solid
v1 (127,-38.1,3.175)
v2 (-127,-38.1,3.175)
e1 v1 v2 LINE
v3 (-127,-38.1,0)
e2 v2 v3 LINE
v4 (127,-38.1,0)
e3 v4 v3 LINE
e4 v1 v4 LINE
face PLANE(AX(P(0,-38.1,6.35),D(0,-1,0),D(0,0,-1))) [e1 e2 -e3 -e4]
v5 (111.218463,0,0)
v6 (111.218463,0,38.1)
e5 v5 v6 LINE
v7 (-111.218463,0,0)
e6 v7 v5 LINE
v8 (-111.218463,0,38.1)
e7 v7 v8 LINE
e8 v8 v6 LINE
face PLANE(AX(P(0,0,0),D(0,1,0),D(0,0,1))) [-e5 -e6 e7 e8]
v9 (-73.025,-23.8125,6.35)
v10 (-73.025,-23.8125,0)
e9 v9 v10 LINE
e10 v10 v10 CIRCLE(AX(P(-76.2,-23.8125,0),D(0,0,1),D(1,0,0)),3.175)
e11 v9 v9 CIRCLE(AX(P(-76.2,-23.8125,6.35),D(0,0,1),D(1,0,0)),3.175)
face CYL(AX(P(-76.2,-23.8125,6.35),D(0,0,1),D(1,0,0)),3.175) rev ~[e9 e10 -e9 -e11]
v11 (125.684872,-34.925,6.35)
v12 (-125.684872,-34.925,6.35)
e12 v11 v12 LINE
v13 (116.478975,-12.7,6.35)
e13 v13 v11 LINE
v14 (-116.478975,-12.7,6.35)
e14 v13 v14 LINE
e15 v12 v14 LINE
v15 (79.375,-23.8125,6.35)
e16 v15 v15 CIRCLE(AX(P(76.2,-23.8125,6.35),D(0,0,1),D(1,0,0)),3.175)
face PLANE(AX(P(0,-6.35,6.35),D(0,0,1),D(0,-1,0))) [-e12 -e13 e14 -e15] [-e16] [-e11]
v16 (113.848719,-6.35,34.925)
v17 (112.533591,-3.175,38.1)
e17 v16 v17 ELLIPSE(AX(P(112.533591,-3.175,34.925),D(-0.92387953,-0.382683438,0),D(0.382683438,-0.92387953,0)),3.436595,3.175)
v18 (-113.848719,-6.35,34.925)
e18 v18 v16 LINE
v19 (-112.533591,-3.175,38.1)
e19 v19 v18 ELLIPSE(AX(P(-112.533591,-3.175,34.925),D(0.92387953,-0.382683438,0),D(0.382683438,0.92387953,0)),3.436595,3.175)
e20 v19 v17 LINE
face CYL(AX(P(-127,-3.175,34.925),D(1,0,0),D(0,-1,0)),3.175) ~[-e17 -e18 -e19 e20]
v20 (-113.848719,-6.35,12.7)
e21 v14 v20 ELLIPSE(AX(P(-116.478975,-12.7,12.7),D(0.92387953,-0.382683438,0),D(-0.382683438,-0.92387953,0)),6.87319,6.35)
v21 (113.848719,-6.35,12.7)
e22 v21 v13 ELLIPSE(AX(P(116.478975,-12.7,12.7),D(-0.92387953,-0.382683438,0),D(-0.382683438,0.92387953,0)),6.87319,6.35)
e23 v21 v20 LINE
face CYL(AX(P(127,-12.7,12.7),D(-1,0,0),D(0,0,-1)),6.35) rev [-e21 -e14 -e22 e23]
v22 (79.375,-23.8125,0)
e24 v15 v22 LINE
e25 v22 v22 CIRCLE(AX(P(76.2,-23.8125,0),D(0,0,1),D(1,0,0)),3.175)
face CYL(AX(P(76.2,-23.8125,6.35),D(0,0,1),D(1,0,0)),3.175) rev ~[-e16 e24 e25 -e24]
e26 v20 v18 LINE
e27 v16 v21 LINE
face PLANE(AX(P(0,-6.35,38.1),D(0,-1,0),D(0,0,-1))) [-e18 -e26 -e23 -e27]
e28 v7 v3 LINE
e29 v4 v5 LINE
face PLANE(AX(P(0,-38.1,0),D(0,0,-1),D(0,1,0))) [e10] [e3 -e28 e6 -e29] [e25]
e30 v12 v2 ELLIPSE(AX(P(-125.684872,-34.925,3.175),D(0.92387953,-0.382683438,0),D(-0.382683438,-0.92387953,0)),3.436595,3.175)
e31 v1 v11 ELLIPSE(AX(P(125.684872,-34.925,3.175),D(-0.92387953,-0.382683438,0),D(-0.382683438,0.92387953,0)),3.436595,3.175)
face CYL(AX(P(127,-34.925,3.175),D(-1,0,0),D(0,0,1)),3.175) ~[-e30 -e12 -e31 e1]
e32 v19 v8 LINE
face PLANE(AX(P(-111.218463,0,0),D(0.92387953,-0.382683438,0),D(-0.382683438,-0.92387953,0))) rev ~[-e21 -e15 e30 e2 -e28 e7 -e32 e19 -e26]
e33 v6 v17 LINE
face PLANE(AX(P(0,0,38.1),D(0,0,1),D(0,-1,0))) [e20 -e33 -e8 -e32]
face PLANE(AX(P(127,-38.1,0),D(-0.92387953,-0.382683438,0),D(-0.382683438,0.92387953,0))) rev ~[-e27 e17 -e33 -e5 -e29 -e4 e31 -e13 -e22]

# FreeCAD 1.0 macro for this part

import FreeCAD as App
import Part
import Sketcher
Q = App.Units.Quantity


def edges_at(feature, points):
    """Names of the edges that pass closest to the given points."""
    edges = feature.Shape.Edges
    near = lambda p: min(range(len(edges)), key=lambda i: edges[i].distToShape(Part.Vertex(*p))[0])
    return sorted({f"Edge{near(p) + 1}" for p in points})

doc = App.newDocument("Part")
body = doc.addObject("PartDesign::Body", "Body")

sketch1 = body.newObject("Sketcher::SketchObject", "Sketch")
sketch1.AttachmentSupport = (doc.getObject("YZ_Plane"), [""])
sketch1.MapMode = "FlatFace"
sketch1.addGeometry(Part.LineSegment(App.Vector(-38, 0, 0), App.Vector(0, 0, 0)), False)
sketch1.addGeometry(Part.LineSegment(App.Vector(0, 0, 0), App.Vector(0, 38, 0)), False)
sketch1.addGeometry(Part.LineSegment(App.Vector(0, 38, 0), App.Vector(-6, 38, 0)), False)
sketch1.addGeometry(Part.LineSegment(App.Vector(-6, 38, 0), App.Vector(-6, 6, 0)), False)
sketch1.addGeometry(Part.LineSegment(App.Vector(-6, 6, 0), App.Vector(-38, 6, 0)), False)
sketch1.addGeometry(Part.LineSegment(App.Vector(-38, 6, 0), App.Vector(-38, 0, 0)), False)
sketch1.addConstraint(Sketcher.Constraint("Coincident", 0, 2, 1, 1))
sketch1.addConstraint(Sketcher.Constraint("Coincident", 1, 2, 2, 1))
sketch1.addConstraint(Sketcher.Constraint("Coincident", 2, 2, 3, 1))
sketch1.addConstraint(Sketcher.Constraint("Coincident", 3, 2, 4, 1))
sketch1.addConstraint(Sketcher.Constraint("Coincident", 4, 2, 5, 1))
sketch1.addConstraint(Sketcher.Constraint("Coincident", 5, 2, 0, 1))
sketch1.addConstraint(Sketcher.Constraint("Horizontal", 0))
sketch1.addConstraint(Sketcher.Constraint("Vertical", 1))
sketch1.addConstraint(Sketcher.Constraint("Horizontal", 2))
sketch1.addConstraint(Sketcher.Constraint("Vertical", 3))
sketch1.addConstraint(Sketcher.Constraint("Horizontal", 4))
sketch1.addConstraint(Sketcher.Constraint("Vertical", 5))
sketch1.addConstraint(Sketcher.Constraint("Coincident", 0, 2, -1, 1))
sketch1.addConstraint(Sketcher.Constraint("Equal", 0, 1))
sketch1.addConstraint(Sketcher.Constraint("Equal", 4, 3))
sketch1.addConstraint(Sketcher.Constraint("DistanceX", 0, 1, 0, 2, Q("1.5 in")))
sketch1.addConstraint(Sketcher.Constraint("DistanceX", 2, 2, 2, 1, Q("0.25 in")))
pad1 = body.newObject("PartDesign::Pad", "Pad")
pad1.Profile = sketch1
pad1.Length = Q("10 in")
pad1.Midplane = True
doc.recompute()

fillet = body.newObject("PartDesign::Fillet", "Fillet")
fillet.Base = (pad1, edges_at(pad1, [(0, -6.35, 6.35)]))
fillet.Radius = Q("0.25 in")
doc.recompute()

fillet2 = body.newObject("PartDesign::Fillet", "Fillet001")
fillet2.Base = (fillet, edges_at(fillet, [(0, -6.35, 38.1), (0, -38.1, 6.35)]))
fillet2.Radius = Q("0.125 in")

sketch2 = body.newObject("Sketcher::SketchObject", "Sketch001")
sketch2.AttachmentSupport = (doc.getObject("XY_Plane"), [""])
sketch2.MapMode = "FlatFace"
sketch2.AttachmentOffset = App.Placement(App.Vector(0, 0, 0.25 * 25.4), App.Rotation())
sketch2.addGeometry(Part.Circle(App.Vector(-76.2, -23.8, 0), App.Vector(0, 0, 1), 3.2), False)
sketch2.addGeometry(Part.Circle(App.Vector(76.2, -23.8, 0), App.Vector(0, 0, 1), 3.2), False)
sketch2.addConstraint(Sketcher.Constraint("Equal", 0, 1))
sketch2.addConstraint(Sketcher.Constraint("Symmetric", 0, 3, 1, 3, -2))
sketch2.addConstraint(Sketcher.Constraint("Diameter", 0, Q("0.25 in")))
sketch2.addConstraint(Sketcher.Constraint("DistanceX", 0, 3, -1, 1, Q("3 in")))
sketch2.addConstraint(Sketcher.Constraint("DistanceY", 0, 3, -1, 1, Q("0.9375 in")))
pocket1 = body.newObject("PartDesign::Pocket", "Pocket")
pocket1.Profile = sketch2
pocket1.Type = "ThroughAll"

sketch3 = body.newObject("Sketcher::SketchObject", "Sketch002")
sketch3.AttachmentSupport = (doc.getObject("XY_Plane"), [""])
sketch3.MapMode = "FlatFace"
sketch3.addGeometry(Part.LineSegment(App.Vector(-111, 0, 0), App.Vector(-127, -38, 0)), False)
sketch3.addGeometry(Part.LineSegment(App.Vector(-127, -38, 0), App.Vector(-127, 0, 0)), False)
sketch3.addGeometry(Part.LineSegment(App.Vector(-127, 0, 0), App.Vector(-111, 0, 0)), False)
sketch3.addGeometry(Part.LineSegment(App.Vector(111, 0, 0), App.Vector(127, 0, 0)), False)
sketch3.addGeometry(Part.LineSegment(App.Vector(127, 0, 0), App.Vector(127, -38, 0)), False)
sketch3.addGeometry(Part.LineSegment(App.Vector(127, -38, 0), App.Vector(111, 0, 0)), False)
sketch3.addConstraint(Sketcher.Constraint("Coincident", 0, 2, 1, 1))
sketch3.addConstraint(Sketcher.Constraint("Coincident", 1, 2, 2, 1))
sketch3.addConstraint(Sketcher.Constraint("Coincident", 2, 2, 0, 1))
sketch3.addConstraint(Sketcher.Constraint("Coincident", 3, 2, 4, 1))
sketch3.addConstraint(Sketcher.Constraint("Coincident", 4, 2, 5, 1))
sketch3.addConstraint(Sketcher.Constraint("Coincident", 5, 2, 3, 1))
sketch3.addConstraint(Sketcher.Constraint("Vertical", 1))
sketch3.addConstraint(Sketcher.Constraint("Horizontal", 2))
sketch3.addConstraint(Sketcher.Constraint("Horizontal", 3))
sketch3.addConstraint(Sketcher.Constraint("Vertical", 4))
sketch3.addConstraint(Sketcher.Constraint("Symmetric", 1, 2, 3, 2, -1, 1))
sketch3.addConstraint(Sketcher.Constraint("Symmetric", 2, 2, 5, 2, -2))
sketch3.addConstraint(Sketcher.Constraint("Horizontal", 0, 2, 4, 2))
sketch3.addConstraint(Sketcher.Constraint("DistanceY", 1, 1, 1, 2, Q("1.5 in")))
sketch3.addConstraint(Sketcher.Constraint("DistanceX", 0, 2, -1, 1, Q("5 in")))
sketch3.addConstraint(Sketcher.Constraint("Angle", 0, Q("-112.5 deg")))
pocket2 = body.newObject("PartDesign::Pocket", "Pocket001")
pocket2.Profile = sketch3
pocket2.Type = "ThroughAll"
pocket2.Reversed = True

doc.recompute()
